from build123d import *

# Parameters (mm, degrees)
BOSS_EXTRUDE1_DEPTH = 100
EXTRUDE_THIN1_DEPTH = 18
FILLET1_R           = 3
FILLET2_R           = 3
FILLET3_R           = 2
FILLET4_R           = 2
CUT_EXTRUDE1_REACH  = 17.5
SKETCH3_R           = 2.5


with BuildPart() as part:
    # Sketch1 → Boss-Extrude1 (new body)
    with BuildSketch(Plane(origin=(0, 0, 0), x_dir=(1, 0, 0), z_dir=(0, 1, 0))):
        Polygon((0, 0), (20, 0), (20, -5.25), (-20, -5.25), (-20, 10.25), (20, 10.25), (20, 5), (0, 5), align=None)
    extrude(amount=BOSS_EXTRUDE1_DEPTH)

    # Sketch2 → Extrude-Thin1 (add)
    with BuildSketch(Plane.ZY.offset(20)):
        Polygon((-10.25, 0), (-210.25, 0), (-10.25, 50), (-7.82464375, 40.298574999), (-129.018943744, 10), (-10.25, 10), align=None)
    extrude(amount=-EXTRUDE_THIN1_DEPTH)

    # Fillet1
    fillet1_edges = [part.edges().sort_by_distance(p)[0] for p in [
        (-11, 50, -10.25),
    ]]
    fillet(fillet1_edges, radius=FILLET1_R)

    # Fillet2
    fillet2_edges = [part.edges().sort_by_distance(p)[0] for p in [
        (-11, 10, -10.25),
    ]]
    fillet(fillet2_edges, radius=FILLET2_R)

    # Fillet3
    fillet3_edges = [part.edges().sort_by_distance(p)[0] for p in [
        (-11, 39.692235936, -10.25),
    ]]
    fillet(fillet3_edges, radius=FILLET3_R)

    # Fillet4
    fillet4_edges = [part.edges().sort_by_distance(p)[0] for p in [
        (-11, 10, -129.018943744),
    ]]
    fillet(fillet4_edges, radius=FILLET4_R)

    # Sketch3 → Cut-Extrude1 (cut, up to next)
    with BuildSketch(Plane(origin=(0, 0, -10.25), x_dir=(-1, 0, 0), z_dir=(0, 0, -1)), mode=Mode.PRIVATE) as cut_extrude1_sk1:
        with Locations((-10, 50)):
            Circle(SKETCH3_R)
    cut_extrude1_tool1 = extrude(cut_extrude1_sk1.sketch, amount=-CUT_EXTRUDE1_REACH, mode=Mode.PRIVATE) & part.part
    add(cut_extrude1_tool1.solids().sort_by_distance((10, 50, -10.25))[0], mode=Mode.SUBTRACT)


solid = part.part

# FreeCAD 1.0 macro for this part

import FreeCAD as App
import Part
import Sketcher
from FreeCAD import Vector
Q = App.Units.Quantity


def edges_at(feature, points):
    """Names of the edges that pass closest to the given points."""
    edges = feature.Shape.Edges
    near = lambda p: min(range(len(edges)), key=lambda i: edges[i].distToShape(Part.Vertex(*p))[0])
    return sorted({f"Edge{near(p) + 1}" for p in points})


def add_polygon(sketch, points):
    """Adds a closed chain of lines whose ends are joined by coincident constraints."""
    first, n = sketch.GeometryCount, len(points)
    for a, b in zip(points, points[1:] + points[:1]):
        sketch.addGeometry(Part.LineSegment(App.Vector(*a, 0), App.Vector(*b, 0)), False)
    for i in range(n):
        sketch.addConstraint(Sketcher.Constraint("Coincident", first + i, 2, first + (i + 1) % n, 1))

doc = App.newDocument("Part")
params = doc.addObject("Spreadsheet::Sheet", "Params")
for row, (alias, value) in enumerate([
    ("sketch1_width", "20 mm"),
    ("sketch1_width2", "40 mm"),
    ("sketch1_height", "5 mm"),
    ("sketch1_height2", "15.5 mm"),
    ("pad1_length", "100 mm"),
    ("sketch2_width", "10 mm"),
    ("sketch2_height", "200 mm"),
    ("sketch2_length", "10 mm"),
    ("pad2_length", "18 mm"),
    ("fillet_radius", "3 mm"),
    ("fillet2_radius", "3 mm"),
    ("fillet3_radius", "2 mm"),
    ("fillet4_radius", "2 mm"),
    ("sketch3_diameter", "5 mm"),
], start=1):
    params.set(f"A{row}", alias)
    params.set(f"B{row}", "=" + value)
    params.setAlias(f"B{row}", alias)

body = doc.addObject("PartDesign::Body", "Body")

# Sketch on XZ plane
sketch1 = body.newObject("Sketcher::SketchObject", "Sketch")
sketch1.AttachmentSupport = (doc.getObject("XZ_Plane"), [""])
sketch1.MapMode = "FlatFace"
add_polygon(sketch1, [(20, 0), (0, 0), (0, -5), (20, -5), (20, -10), (-20, -10), (-20, 5), (20, 5)])  # lines 0-7
sketch1.addConstraint(Sketcher.Constraint("Horizontal", 0))
sketch1.addConstraint(Sketcher.Constraint("Vertical", 1))
sketch1.addConstraint(Sketcher.Constraint("Horizontal", 2))
sketch1.addConstraint(Sketcher.Constraint("Vertical", 3))
sketch1.addConstraint(Sketcher.Constraint("Horizontal", 4))
sketch1.addConstraint(Sketcher.Constraint("Vertical", 5))
sketch1.addConstraint(Sketcher.Constraint("Horizontal", 6))
sketch1.addConstraint(Sketcher.Constraint("Vertical", 7))
sketch1.addConstraint(Sketcher.Constraint("Coincident", 0, 2, -1, 1))
sketch1.addConstraint(Sketcher.Constraint("Vertical", 3, 2, 6, 2))
sketch1.addConstraint(Sketcher.Constraint("Equal", 3, 7))
sketch1.addConstraint(Sketcher.Constraint("DistanceX", 0, 2, 0, 1, Q("20 mm")))
sketch1.addConstraint(Sketcher.Constraint("DistanceX", 4, 2, 4, 1, Q("40 mm")))
sketch1.addConstraint(Sketcher.Constraint("DistanceY", 1, 2, 1, 1, Q("5 mm")))
sketch1.addConstraint(Sketcher.Constraint("DistanceY", 5, 1, 5, 2, Q("15.5 mm")))
sketch1.setExpression("Constraints[19]", "Params.sketch1_width")
sketch1.setExpression("Constraints[20]", "Params.sketch1_width2")
sketch1.setExpression("Constraints[21]", "Params.sketch1_height")
sketch1.setExpression("Constraints[22]", "Params.sketch1_height2")
pad1 = body.newObject("PartDesign::Pad", "Pad")
pad1.Profile = sketch1
pad1.setExpression("Length", "Params.pad1_length")
pad1.Reversed = True

# Sketch on YZ plane
sketch2 = body.newObject("Sketcher::SketchObject", "Sketch001")
sketch2.AttachmentSupport = (doc.getObject("YZ_Plane"), [""])
sketch2.MapMode = "FlatFace"
sketch2.AttachmentOffset = App.Placement(Vector(0, 0, -20), App.Rotation())
add_polygon(sketch2, [(0, -210), (0, -10), (10, -10), (10, -129), (40, -8), (50, -10)])  # lines 0-5
sketch2.addConstraint(Sketcher.Constraint("Vertical", 0))
sketch2.addConstraint(Sketcher.Constraint("Horizontal", 1))
sketch2.addConstraint(Sketcher.Constraint("Vertical", 2))
sketch2.addConstraint(Sketcher.Constraint("PointOnObject", 0, 2, -2))
sketch2.addConstraint(Sketcher.Constraint("Perpendicular", 3, 4))
sketch2.addConstraint(Sketcher.Constraint("Perpendicular", 4, 5))
sketch2.addConstraint(Sketcher.Constraint("Horizontal", 1, 2, 4, 2))
sketch2.addConstraint(Sketcher.Constraint("DistanceX", 1, 1, 1, 2, Q("10 mm")))
sketch2.addConstraint(Sketcher.Constraint("DistanceY", 0, 1, 0, 2, Q("200 mm")))
sketch2.addConstraint(Sketcher.Constraint("Distance", 4, Q("10 mm")))
sketch2.addConstraint(Sketcher.Constraint("DistanceX", -1, 1, 4, 2, Q("50 mm")))
sketch2.addConstraint(Sketcher.Constraint("DistanceY", 0, 2, -1, 1, Q("10.25 mm")))
sketch2.setExpression("Constraints[13]", "Params.sketch2_width")
sketch2.setExpression("Constraints[14]", "Params.sketch2_height")
sketch2.setExpression("Constraints[15]", "Params.sketch2_length")
pad2 = body.newObject("PartDesign::Pad", "Pad001")
pad2.Profile = sketch2
pad2.setExpression("Length", "Params.pad2_length")
doc.recompute()

fillet = body.newObject("PartDesign::Fillet", "Fillet")
fillet.Base = (pad2, edges_at(pad2, [(-11, 50, -10.25)]))
fillet.setExpression("Radius", "Params.fillet_radius")
doc.recompute()

fillet2 = body.newObject("PartDesign::Fillet", "Fillet001")
fillet2.Base = (fillet, edges_at(fillet, [(-11, 10, -10.25)]))
fillet2.setExpression("Radius", "Params.fillet2_radius")
doc.recompute()

fillet3 = body.newObject("PartDesign::Fillet", "Fillet002")
fillet3.Base = (fillet2, edges_at(fillet2, [(-11, 39.692, -10.25)]))
fillet3.setExpression("Radius", "Params.fillet3_radius")
doc.recompute()

fillet4 = body.newObject("PartDesign::Fillet", "Fillet003")
fillet4.Base = (fillet3, edges_at(fillet3, [(-11, 10, -129.019)]))
fillet4.setExpression("Radius", "Params.fillet4_radius")

# Sketch on XY plane
sketch3 = body.newObject("Sketcher::SketchObject", "Sketch002")
sketch3.AttachmentSupport = (doc.getObject("XY_Plane"), [""])
sketch3.MapMode = "FlatFace"
sketch3.AttachmentOffset = App.Placement(Vector(0, 0, -10.25), App.Rotation())
sketch3.addGeometry(Part.Circle(Vector(10, 50, 0), Vector(0, 0, 1), 2.5), False)
sketch3.addConstraint(Sketcher.Constraint("Diameter", 0, Q("5 mm")))
sketch3.addConstraint(Sketcher.Constraint("DistanceX", -1, 1, 0, 3, Q("10 mm")))
sketch3.addConstraint(Sketcher.Constraint("DistanceY", -1, 1, 0, 3, Q("50 mm")))
sketch3.setExpression("Constraints[0]", "Params.sketch3_diameter")
pocket1 = body.newObject("PartDesign::Pocket", "Pocket")
pocket1.Profile = sketch3
pocket1.Type = "UpToFirst"
pocket1.Reversed = True

doc.recompute()
